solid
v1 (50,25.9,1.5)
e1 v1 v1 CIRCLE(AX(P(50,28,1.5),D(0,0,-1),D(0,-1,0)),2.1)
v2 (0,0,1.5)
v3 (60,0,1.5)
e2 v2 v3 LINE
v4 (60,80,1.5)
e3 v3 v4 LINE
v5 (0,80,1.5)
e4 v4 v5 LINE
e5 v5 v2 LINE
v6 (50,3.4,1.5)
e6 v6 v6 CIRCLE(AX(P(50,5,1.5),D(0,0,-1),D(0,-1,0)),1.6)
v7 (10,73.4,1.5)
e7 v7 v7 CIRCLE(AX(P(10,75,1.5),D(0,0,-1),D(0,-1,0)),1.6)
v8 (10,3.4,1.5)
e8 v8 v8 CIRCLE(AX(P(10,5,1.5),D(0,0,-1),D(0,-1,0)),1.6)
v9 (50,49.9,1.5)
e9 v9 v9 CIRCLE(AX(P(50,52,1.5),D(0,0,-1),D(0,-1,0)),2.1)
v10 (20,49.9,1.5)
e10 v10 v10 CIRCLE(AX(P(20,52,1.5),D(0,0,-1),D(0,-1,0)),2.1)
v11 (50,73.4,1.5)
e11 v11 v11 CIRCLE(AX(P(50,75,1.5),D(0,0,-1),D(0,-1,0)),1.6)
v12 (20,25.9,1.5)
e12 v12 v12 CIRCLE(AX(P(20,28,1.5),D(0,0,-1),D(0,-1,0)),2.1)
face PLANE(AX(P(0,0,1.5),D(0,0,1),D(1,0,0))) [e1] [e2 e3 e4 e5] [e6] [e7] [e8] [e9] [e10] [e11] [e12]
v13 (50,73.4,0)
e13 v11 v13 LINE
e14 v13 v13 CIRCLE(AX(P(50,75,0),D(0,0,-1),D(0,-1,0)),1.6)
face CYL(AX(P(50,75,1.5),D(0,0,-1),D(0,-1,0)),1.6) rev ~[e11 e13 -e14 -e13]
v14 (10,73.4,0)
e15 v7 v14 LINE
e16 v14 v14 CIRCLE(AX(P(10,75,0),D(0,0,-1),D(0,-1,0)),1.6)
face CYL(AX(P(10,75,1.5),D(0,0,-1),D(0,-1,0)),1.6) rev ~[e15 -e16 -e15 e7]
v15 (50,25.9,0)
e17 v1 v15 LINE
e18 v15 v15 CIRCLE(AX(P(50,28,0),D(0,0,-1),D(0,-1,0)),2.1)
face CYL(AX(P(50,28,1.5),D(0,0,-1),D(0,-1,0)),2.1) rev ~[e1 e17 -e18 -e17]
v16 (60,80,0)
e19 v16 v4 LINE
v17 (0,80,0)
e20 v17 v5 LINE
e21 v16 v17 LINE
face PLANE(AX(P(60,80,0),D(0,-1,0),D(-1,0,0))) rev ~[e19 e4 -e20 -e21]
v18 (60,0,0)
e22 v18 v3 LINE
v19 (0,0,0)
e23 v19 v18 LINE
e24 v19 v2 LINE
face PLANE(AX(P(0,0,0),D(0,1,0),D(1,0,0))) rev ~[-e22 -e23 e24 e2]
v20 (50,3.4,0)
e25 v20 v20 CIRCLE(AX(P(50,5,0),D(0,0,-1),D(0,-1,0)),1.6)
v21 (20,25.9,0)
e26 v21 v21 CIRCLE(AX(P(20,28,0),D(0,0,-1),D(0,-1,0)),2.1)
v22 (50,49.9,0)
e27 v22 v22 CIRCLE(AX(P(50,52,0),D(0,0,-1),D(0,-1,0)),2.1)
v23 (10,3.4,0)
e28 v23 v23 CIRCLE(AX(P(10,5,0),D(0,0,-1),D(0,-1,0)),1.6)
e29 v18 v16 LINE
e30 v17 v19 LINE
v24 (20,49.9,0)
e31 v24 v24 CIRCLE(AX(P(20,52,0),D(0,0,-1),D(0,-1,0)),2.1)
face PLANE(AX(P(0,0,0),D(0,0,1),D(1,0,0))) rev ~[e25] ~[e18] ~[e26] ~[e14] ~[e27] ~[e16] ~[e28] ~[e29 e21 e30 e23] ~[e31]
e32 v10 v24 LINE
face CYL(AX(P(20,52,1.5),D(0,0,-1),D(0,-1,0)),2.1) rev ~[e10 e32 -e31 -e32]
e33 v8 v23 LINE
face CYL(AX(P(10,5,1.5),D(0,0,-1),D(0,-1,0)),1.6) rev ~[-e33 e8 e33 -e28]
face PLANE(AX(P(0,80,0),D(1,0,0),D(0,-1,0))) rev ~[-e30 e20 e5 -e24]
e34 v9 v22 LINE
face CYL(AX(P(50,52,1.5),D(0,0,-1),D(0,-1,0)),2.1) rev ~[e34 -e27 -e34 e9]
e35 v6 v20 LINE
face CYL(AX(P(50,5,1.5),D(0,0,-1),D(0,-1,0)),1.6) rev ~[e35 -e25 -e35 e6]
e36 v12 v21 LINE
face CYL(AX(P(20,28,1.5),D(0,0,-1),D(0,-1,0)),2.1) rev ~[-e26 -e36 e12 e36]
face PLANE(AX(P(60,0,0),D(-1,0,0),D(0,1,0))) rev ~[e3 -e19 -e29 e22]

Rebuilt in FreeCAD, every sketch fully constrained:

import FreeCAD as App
import Part
import Sketcher
Q = App.Units.Quantity

doc = App.newDocument("Part")
params = doc.addObject("Spreadsheet::Sheet", "Params")
for row, (alias, value) in enumerate([
    ("sketch1_width", "60 mm"),
    ("sketch1_height", "80 mm"),
    ("pad1_length", "1.5 mm"),
    ("sketch2_diameter", "3.2 mm"),
    ("hole_diameter", "3.2 mm"),
    ("hole_depth", "8.8 mm"),
    ("sketch3_diameter", "4.2 mm"),
    ("hole2_diameter", "4.2 mm"),
    ("hole2_depth", "8.8 mm"),
], start=1):
    params.set(f"A{row}", alias)
    params.set(f"B{row}", "=" + value)
    params.setAlias(f"B{row}", alias)

body = doc.addObject("PartDesign::Body", "Body")

# Sketch on XY plane
sketch1 = body.newObject("Sketcher::SketchObject", "Sketch")
sketch1.AttachmentSupport = (doc.getObject("XY_Plane"), [""])
sketch1.MapMode = "FlatFace"
sketch1.addGeometry(Part.LineSegment(App.Vector(0, 80, 0), App.Vector(0, 0, 0)), False)
sketch1.addGeometry(Part.LineSegment(App.Vector(0, 0, 0), App.Vector(60, 0, 0)), False)
sketch1.addGeometry(Part.LineSegment(App.Vector(60, 0, 0), App.Vector(60, 80, 0)), False)
sketch1.addGeometry(Part.LineSegment(App.Vector(60, 80, 0), App.Vector(0, 80, 0)), False)
sketch1.addConstraint(Sketcher.Constraint("Coincident", 0, 2, 1, 1))
sketch1.addConstraint(Sketcher.Constraint("Coincident", 1, 2, 2, 1))
sketch1.addConstraint(Sketcher.Constraint("Coincident", 2, 2, 3, 1))
sketch1.addConstraint(Sketcher.Constraint("Coincident", 3, 2, 0, 1))
sketch1.addConstraint(Sketcher.Constraint("Vertical", 0))
sketch1.addConstraint(Sketcher.Constraint("Horizontal", 1))
sketch1.addConstraint(Sketcher.Constraint("Vertical", 2))
sketch1.addConstraint(Sketcher.Constraint("Horizontal", 3))
sketch1.addConstraint(Sketcher.Constraint("Coincident", 0, 2, -1, 1))
sketch1.addConstraint(Sketcher.Constraint("DistanceX", 1, 1, 1, 2, Q("60 mm")))
sketch1.addConstraint(Sketcher.Constraint("DistanceY", 0, 2, 0, 1, Q("80 mm")))
sketch1.setExpression("Constraints[9]", "Params.sketch1_width")
sketch1.setExpression("Constraints[10]", "Params.sketch1_height")
pad1 = body.newObject("PartDesign::Pad", "Pad")
pad1.Profile = sketch1
pad1.setExpression("Length", "Params.pad1_length")

# Sketch on XY plane
sketch2 = body.newObject("Sketcher::SketchObject", "Sketch001")
sketch2.AttachmentSupport = (doc.getObject("XY_Plane"), [""])
sketch2.MapMode = "FlatFace"
sketch2.AttachmentOffset = App.Placement(App.Vector(0, 0, 1.5), App.Rotation())
sketch2.addGeometry(Part.Circle(App.Vector(10, 5, 0), App.Vector(0, 0, 1), 1.6), False)
sketch2.addGeometry(Part.Circle(App.Vector(50, 5, 0), App.Vector(0, 0, 1), 1.6), False)
sketch2.addGeometry(Part.Circle(App.Vector(50, 75, 0), App.Vector(0, 0, 1), 1.6), False)
sketch2.addGeometry(Part.Circle(App.Vector(10, 75, 0), App.Vector(0, 0, 1), 1.6), False)
sketch2.addConstraint(Sketcher.Constraint("Equal", 0, 1))
sketch2.addConstraint(Sketcher.Constraint("Equal", 1, 2))
sketch2.addConstraint(Sketcher.Constraint("Equal", 2, 3))
sketch2.addConstraint(Sketcher.Constraint("Horizontal", 0, 3, 1, 3))
sketch2.addConstraint(Sketcher.Constraint("Horizontal", 2, 3, 3, 3))
sketch2.addConstraint(Sketcher.Constraint("Vertical", 1, 3, 2, 3))
sketch2.addConstraint(Sketcher.Constraint("Vertical", 0, 3, 3, 3))
sketch2.addConstraint(Sketcher.Constraint("Diameter", 0, Q("3.2 mm")))
sketch2.addConstraint(Sketcher.Constraint("DistanceX", -1, 1, 0, 3, Q("10 mm")))
sketch2.addConstraint(Sketcher.Constraint("DistanceY", -1, 1, 0, 3, Q("5 mm")))
sketch2.addConstraint(Sketcher.Constraint("DistanceX", -1, 1, 1, 3, Q("50 mm")))
sketch2.addConstraint(Sketcher.Constraint("DistanceY", -1, 1, 2, 3, Q("75 mm")))
sketch2.setExpression("Constraints[7]", "Params.sketch2_diameter")
doc.recompute()
hole = body.newObject("PartDesign::Hole", "Hole")
hole.Profile = sketch2
hole.ThreadType = "None"
hole.setExpression("Diameter", "Params.hole_diameter")
hole.DepthType = "Dimension"
hole.setExpression("Depth", "Params.hole_depth")
hole.DrillPoint = "Angled"
hole.DrillPointAngle = 118

# Sketch on XY plane
sketch3 = body.newObject("Sketcher::SketchObject", "Sketch002")
sketch3.AttachmentSupport = (doc.getObject("XY_Plane"), [""])
sketch3.MapMode = "FlatFace"
sketch3.AttachmentOffset = App.Placement(App.Vector(0, 0, 1.5), App.Rotation())
sketch3.addGeometry(Part.Circle(App.Vector(20, 52, 0), App.Vector(0, 0, 1), 2.1), False)
sketch3.addGeometry(Part.Circle(App.Vector(50, 52, 0), App.Vector(0, 0, 1), 2.1), False)
sketch3.addGeometry(Part.Circle(App.Vector(50, 28, 0), App.Vector(0, 0, 1), 2.1), False)
sketch3.addGeometry(Part.Circle(App.Vector(20, 28, 0), App.Vector(0, 0, 1), 2.1), False)
sketch3.addConstraint(Sketcher.Constraint("Equal", 0, 1))
sketch3.addConstraint(Sketcher.Constraint("Equal", 1, 2))
sketch3.addConstraint(Sketcher.Constraint("Equal", 2, 3))
sketch3.addConstraint(Sketcher.Constraint("Horizontal", 0, 3, 1, 3))
sketch3.addConstraint(Sketcher.Constraint("Horizontal", 2, 3, 3, 3))
sketch3.addConstraint(Sketcher.Constraint("Vertical", 1, 3, 2, 3))
sketch3.addConstraint(Sketcher.Constraint("Vertical", 0, 3, 3, 3))
sketch3.addConstraint(Sketcher.Constraint("Diameter", 0, Q("4.2 mm")))
sketch3.addConstraint(Sketcher.Constraint("DistanceX", -1, 1, 0, 3, Q("20 mm")))
sketch3.addConstraint(Sketcher.Constraint("DistanceY", -1, 1, 0, 3, Q("52 mm")))
sketch3.addConstraint(Sketcher.Constraint("DistanceX", -1, 1, 1, 3, Q("50 mm")))
sketch3.addConstraint(Sketcher.Constraint("DistanceY", -1, 1, 2, 3, Q("28 mm")))
sketch3.setExpression("Constraints[7]", "Params.sketch3_diameter")
doc.recompute()
hole2 = body.newObject("PartDesign::Hole", "Hole001")
hole2.Profile = sketch3
hole2.ThreadType = "None"
hole2.setExpression("Diameter", "Params.hole2_diameter")
hole2.DepthType = "Dimension"
hole2.setExpression("Depth", "Params.hole2_depth")
hole2.DrillPoint = "Angled"
hole2.DrillPointAngle = 118

doc.recompute()
